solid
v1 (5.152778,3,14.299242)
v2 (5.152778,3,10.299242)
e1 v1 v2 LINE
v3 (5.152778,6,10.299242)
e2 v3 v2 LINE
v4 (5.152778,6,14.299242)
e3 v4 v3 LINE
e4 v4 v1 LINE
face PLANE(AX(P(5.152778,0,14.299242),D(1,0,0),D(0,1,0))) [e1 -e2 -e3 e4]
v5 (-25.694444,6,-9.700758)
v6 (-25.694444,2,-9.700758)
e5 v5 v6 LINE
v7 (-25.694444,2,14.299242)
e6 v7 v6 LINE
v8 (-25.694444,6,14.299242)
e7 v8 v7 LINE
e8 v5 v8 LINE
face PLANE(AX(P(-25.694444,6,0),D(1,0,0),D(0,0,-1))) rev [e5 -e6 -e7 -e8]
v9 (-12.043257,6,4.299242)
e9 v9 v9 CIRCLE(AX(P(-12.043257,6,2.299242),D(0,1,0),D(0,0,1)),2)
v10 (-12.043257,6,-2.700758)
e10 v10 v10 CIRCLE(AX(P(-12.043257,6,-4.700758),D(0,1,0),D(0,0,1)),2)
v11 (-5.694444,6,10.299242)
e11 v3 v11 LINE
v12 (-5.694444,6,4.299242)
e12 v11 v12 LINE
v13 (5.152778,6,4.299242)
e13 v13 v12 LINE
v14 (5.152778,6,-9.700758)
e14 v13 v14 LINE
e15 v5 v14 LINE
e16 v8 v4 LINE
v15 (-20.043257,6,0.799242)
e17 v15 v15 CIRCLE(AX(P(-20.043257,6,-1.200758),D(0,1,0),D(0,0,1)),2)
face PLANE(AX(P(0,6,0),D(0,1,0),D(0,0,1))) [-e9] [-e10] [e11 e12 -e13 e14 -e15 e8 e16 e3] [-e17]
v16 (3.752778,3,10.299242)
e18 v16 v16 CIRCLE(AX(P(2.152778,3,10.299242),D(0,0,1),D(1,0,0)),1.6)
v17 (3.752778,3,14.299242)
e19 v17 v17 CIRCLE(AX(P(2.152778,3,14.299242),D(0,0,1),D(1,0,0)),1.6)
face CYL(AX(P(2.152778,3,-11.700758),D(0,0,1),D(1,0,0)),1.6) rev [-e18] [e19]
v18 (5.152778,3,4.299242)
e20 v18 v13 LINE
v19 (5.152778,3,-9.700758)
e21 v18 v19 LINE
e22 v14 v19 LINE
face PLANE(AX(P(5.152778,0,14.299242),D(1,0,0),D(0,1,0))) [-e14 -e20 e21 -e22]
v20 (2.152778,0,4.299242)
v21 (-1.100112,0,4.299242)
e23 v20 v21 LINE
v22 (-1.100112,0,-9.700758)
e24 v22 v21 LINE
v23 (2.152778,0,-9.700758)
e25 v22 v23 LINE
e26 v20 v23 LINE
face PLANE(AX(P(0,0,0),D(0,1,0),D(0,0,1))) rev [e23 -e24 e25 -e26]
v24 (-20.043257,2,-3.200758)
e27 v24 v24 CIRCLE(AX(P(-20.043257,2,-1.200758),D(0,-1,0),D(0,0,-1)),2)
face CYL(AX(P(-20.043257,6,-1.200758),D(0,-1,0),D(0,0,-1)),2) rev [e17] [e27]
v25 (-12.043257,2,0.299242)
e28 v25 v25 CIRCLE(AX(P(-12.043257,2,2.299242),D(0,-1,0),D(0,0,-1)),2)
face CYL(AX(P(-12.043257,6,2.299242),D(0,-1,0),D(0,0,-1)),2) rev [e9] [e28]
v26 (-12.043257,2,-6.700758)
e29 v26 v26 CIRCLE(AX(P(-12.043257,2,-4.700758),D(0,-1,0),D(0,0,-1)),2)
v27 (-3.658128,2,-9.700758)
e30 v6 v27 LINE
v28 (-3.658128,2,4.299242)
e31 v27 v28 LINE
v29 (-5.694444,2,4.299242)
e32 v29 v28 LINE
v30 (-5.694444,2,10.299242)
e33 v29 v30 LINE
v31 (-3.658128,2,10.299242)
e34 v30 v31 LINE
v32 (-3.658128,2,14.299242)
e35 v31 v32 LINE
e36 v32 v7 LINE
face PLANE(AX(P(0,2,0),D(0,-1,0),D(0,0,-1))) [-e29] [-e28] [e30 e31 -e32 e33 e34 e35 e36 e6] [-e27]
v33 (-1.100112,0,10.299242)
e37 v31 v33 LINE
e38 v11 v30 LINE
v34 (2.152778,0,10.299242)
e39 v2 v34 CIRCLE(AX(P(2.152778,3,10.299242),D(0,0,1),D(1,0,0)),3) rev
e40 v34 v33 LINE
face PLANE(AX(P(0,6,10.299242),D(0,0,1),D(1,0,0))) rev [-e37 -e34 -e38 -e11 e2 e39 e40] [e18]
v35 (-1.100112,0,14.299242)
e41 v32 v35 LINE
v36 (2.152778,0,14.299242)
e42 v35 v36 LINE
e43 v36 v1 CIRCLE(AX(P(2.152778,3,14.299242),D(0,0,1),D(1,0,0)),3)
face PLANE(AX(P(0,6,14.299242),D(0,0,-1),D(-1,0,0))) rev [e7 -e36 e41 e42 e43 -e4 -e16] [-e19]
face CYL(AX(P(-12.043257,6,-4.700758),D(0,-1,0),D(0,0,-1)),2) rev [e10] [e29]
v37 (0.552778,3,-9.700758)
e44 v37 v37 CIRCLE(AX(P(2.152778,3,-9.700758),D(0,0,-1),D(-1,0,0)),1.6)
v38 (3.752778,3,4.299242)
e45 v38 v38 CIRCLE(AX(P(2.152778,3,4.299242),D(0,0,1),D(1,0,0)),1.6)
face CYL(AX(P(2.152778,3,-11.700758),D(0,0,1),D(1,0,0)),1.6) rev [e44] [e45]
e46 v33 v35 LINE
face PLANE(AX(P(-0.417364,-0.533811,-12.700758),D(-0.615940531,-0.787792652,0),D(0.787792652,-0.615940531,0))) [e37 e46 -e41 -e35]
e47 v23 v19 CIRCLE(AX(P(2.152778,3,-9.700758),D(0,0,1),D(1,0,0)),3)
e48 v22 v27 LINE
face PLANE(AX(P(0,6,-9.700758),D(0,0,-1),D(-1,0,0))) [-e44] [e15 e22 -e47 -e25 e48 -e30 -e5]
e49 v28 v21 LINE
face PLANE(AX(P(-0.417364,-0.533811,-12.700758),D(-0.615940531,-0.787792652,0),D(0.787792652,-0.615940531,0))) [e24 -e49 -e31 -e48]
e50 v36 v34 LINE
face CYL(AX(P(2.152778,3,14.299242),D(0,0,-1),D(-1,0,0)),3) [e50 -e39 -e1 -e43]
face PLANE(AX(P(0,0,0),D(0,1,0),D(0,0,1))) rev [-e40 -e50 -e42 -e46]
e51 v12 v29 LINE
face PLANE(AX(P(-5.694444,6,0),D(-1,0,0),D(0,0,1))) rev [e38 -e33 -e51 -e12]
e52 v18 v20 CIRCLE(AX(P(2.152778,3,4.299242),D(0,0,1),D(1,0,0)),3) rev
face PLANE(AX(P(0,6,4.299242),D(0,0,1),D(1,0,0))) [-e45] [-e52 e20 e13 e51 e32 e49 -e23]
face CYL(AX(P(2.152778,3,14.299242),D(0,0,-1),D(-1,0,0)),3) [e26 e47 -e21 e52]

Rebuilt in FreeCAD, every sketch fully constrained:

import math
import FreeCAD as App
import Part
import Sketcher


def add_polygon(sketch, points):
    """Adds a closed chain of lines whose ends are joined by coincident constraints."""
    first, n = sketch.GeometryCount, len(points)
    for a, b in zip(points, points[1:] + points[:1]):
        sketch.addGeometry(Part.LineSegment(App.Vector(*a, 0), App.Vector(*b, 0)), False)
    for i in range(n):
        sketch.addConstraint(Sketcher.Constraint("Coincident", first + i, 2, first + (i + 1) % n, 1))

doc = App.newDocument("Part")
params = doc.addObject("Spreadsheet::Sheet", "Params")
for row, (alias, value) in enumerate([
    ("sketch1_diameter", "4 mm"),
    ("sketch1_width", "30 mm"),
    ("sketch1_width2", "10 mm"),
    ("sketch1_height", "24 mm"),
    ("sketch1_height2", "4 mm"),
    ("pad1_length", "6 mm"),
    ("sketch2_diameter", "3.2 mm"),
    ("pocket1_length", "26 mm"),
    ("sketch3_height", "24 mm"),
    ("pocket2_length", "2 mm"),
    ("sketch4_height", "2 mm"),
    ("pocket3_length", "27 mm"),
    ("sketch5_radius", "3 mm"),
    ("pocket4_length", "24 mm"),
    ("sketch6_radius", "3 mm"),
    ("sketch6_height", "3 mm"),
    ("pad2_length", "24 mm"),
    ("sketch7_height", "6 mm"),
    ("pocket5_length", "24 mm"),
], start=1):
    params.set(f"A{row}", alias)
    params.set(f"B{row}", "=" + value)
    params.setAlias(f"B{row}", alias)

body = doc.addObject("PartDesign::Body", "Body")

# Sketch on XZ plane
sketch1 = body.newObject("Sketcher::SketchObject", "Sketch")
sketch1.AttachmentSupport = (doc.getObject("XZ_Plane"), [""])
sketch1.MapMode = "FlatFace"
add_polygon(sketch1, [(4.3, -9.7), (-25.7, -9.7), (-25.7, 14.3), (4.3, 14.3), (4.3, 10.3), (-5.7, 10.3), (-5.7, 4.3), (4.3, 4.3)])  # lines 0-7
sketch1.addGeometry(Part.Circle(App.Vector(-12, 2.3, 0), App.Vector(0, 0, 1), 2), False)  # 8
sketch1.addGeometry(Part.Circle(App.Vector(-20, -1.2, 0), App.Vector(0, 0, 1), 2), False)  # 9
sketch1.addGeometry(Part.Circle(App.Vector(-12, -4.7, 0), App.Vector(0, 0, 1), 2), False)  # 10
sketch1.addConstraint([
    Sketcher.Constraint("Horizontal", 0),
    Sketcher.Constraint("Vertical", 1),
    Sketcher.Constraint("Horizontal", 2),
    Sketcher.Constraint("Vertical", 3),
    Sketcher.Constraint("Horizontal", 4),
    Sketcher.Constraint("Vertical", 5),
    Sketcher.Constraint("Horizontal", 6),
    Sketcher.Constraint("Vertical", 7),
    Sketcher.Constraint("Equal", 8, 9),
    Sketcher.Constraint("Equal", 9, 10),
    Sketcher.Constraint("Vertical", 8, 3, 10, 3),
    Sketcher.Constraint("Vertical", 3, 2, 6, 2),
    Sketcher.Constraint("Diameter", 8, 4.0),
    Sketcher.Constraint("DistanceX", 0, 2, 0, 1, 30.0),
    Sketcher.Constraint("DistanceX", 4, 2, 4, 1, 10.0),
    Sketcher.Constraint("DistanceY", 1, 1, 1, 2, 24.0),
    Sketcher.Constraint("DistanceY", 3, 2, 3, 1, 4.0),
    Sketcher.Constraint("DistanceY", 5, 2, 5, 1, 6.0),
    Sketcher.Constraint("DistanceX", 9, 3, 8, 3, 8.0),
    Sketcher.Constraint("DistanceY", 10, 3, 8, 3, 7.0),
    Sketcher.Constraint("DistanceY", 0, 2, 10, 3, 5.0),
    Sketcher.Constraint("DistanceY", 9, 3, 8, 3, 3.5),
    Sketcher.Constraint("DistanceX", 8, 3, -1, 1, 12.043257),
    Sketcher.Constraint("DistanceY", -1, 1, 8, 3, 2.299242),
    Sketcher.Constraint("DistanceX", 0, 2, -1, 1, 25.694444),
])
sketch1.setExpression("Constraints[20]", "Params.sketch1_diameter")
sketch1.setExpression("Constraints[21]", "Params.sketch1_width")
sketch1.setExpression("Constraints[22]", "Params.sketch1_width2")
sketch1.setExpression("Constraints[23]", "Params.sketch1_height")
sketch1.setExpression("Constraints[24]", "Params.sketch1_height2")
pad1 = body.newObject("PartDesign::Pad", "Pad")
pad1.Profile = sketch1
pad1.setExpression("Length", "Params.pad1_length")
pad1.Reversed = True

# Sketch on XY plane
sketch2 = body.newObject("Sketcher::SketchObject", "Sketch001")
sketch2.AttachmentSupport = (doc.getObject("XY_Plane"), [""])
sketch2.MapMode = "FlatFace"
sketch2.AttachmentOffset = App.Placement(App.Vector(0, 0, 14.299242), App.Rotation())
sketch2.addGeometry(Part.Circle(App.Vector(2.2, 3, 0), App.Vector(0, 0, 1), 1.6), False)
sketch2.addConstraint([
    Sketcher.Constraint("Diameter", 0, 3.2),
    Sketcher.Constraint("DistanceY", -1, 1, 0, 3, 3.0),
    Sketcher.Constraint("DistanceX", -1, 1, 0, 3, 2.152778),
])
sketch2.setExpression("Constraints[0]", "Params.sketch2_diameter")
pocket1 = body.newObject("PartDesign::Pocket", "Pocket")
pocket1.Profile = sketch2
pocket1.setExpression("Length", "Params.pocket1_length")

# Sketch on XZ plane
sketch3 = body.newObject("Sketcher::SketchObject", "Sketch002")
sketch3.AttachmentSupport = (doc.getObject("XZ_Plane"), [""])
sketch3.MapMode = "FlatFace"
add_polygon(sketch3, [(-26, 14), (-26, -10), (-4, -10), (-4, 14)])  # lines 0-3
sketch3.addConstraint([
    Sketcher.Constraint("Vertical", 0),
    Sketcher.Constraint("Horizontal", 1),
    Sketcher.Constraint("Vertical", 2),
    Sketcher.Constraint("Horizontal", 3),
    Sketcher.Constraint("DistanceY", 0, 2, 0, 1, 24.0),
    Sketcher.Constraint("DistanceX", 1, 1, 1, 2, 22.036317),
    Sketcher.Constraint("DistanceX", 0, 2, -1, 1, 25.694444),
    Sketcher.Constraint("DistanceY", 0, 2, -1, 1, 9.700758),
])
sketch3.setExpression("Constraints[8]", "Params.sketch3_height")
pocket2 = body.newObject("PartDesign::Pocket", "Pocket001")
pocket2.Profile = sketch3
pocket2.setExpression("Length", "Params.pocket2_length")

# Sketch on XY plane
sketch4 = body.newObject("Sketcher::SketchObject", "Sketch003")
sketch4.AttachmentSupport = (doc.getObject("XY_Plane"), [""])
sketch4.MapMode = "FlatFace"
sketch4.AttachmentOffset = App.Placement(App.Vector(0, 0, 14.299242), App.Rotation())
add_polygon(sketch4, [(-1.1, 0), (-3.7, 2), (-3.7, 0)])  # lines 0-2
sketch4.addConstraint([
    Sketcher.Constraint("Vertical", 1),
    Sketcher.Constraint("Horizontal", 2),
    Sketcher.Constraint("PointOnObject", 1, 2, -1),
    Sketcher.Constraint("DistanceY", 1, 2, 1, 1, 2.0),
    Sketcher.Constraint("DistanceX", 2, 1, 2, 2, 2.558015),
    Sketcher.Constraint("DistanceX", 0, 2, -1, 1, 3.658128),
])
sketch4.setExpression("Constraints[6]", "Params.sketch4_height")
pocket3 = body.newObject("PartDesign::Pocket", "Pocket002")
pocket3.Profile = sketch4
pocket3.setExpression("Length", "Params.pocket3_length")

# Sketch on XY plane
sketch5 = body.newObject("Sketcher::SketchObject", "Sketch004")
sketch5.AttachmentSupport = (doc.getObject("XY_Plane"), [""])
sketch5.MapMode = "FlatFace"
sketch5.AttachmentOffset = App.Placement(App.Vector(0, 0, -9.700758), App.Rotation())
sketch5.addGeometry([
    Part.LineSegment(App.Vector(4.3, 0, 0), App.Vector(2.2, 0, 0)),
    Part.ArcOfCircle(Part.Circle(App.Vector(2.2, 3, 0), App.Vector(0, 0, 1), 3), math.radians(-90), math.radians(-44)),
    Part.LineSegment(App.Vector(4.3, 0.9, 0), App.Vector(4.3, 0, 0)),
], False)
sketch5.addConstraint([
    Sketcher.Constraint("Tangent", 0, 2, 1, 1),
    Sketcher.Constraint("Coincident", 1, 2, 2, 1),
    Sketcher.Constraint("Coincident", 2, 2, 0, 1),
    Sketcher.Constraint("Horizontal", 0),
    Sketcher.Constraint("Vertical", 2),
    Sketcher.Constraint("PointOnObject", 0, 2, -1),
    Sketcher.Constraint("Radius", 1, 3.0),
    Sketcher.Constraint("DistanceY", 2, 2, 2, 1, 0.910611),
    Sketcher.Constraint("DistanceX", -1, 1, 1, 3, 2.152778),
])
sketch5.setExpression("Constraints[6]", "Params.sketch5_radius")
pocket4 = body.newObject("PartDesign::Pocket", "Pocket003")
pocket4.Profile = sketch5
pocket4.setExpression("Length", "Params.pocket4_length")
pocket4.Reversed = True

# Sketch on XY plane
sketch6 = body.newObject("Sketcher::SketchObject", "Sketch005")
sketch6.AttachmentSupport = (doc.getObject("XY_Plane"), [""])
sketch6.MapMode = "FlatFace"
sketch6.AttachmentOffset = App.Placement(App.Vector(0, 0, -9.700758), App.Rotation())
sketch6.addGeometry([
    Part.ArcOfCircle(Part.Circle(App.Vector(2.2, 3, 0), App.Vector(0, 0, 1), 3), math.radians(-44), math.radians(0)),
    Part.LineSegment(App.Vector(4.3, 0.9, 0), App.Vector(4.3, 6, 0)),
    Part.LineSegment(App.Vector(4.3, 6, 0), App.Vector(5.2, 6, 0)),
    Part.LineSegment(App.Vector(5.2, 6, 0), App.Vector(5.2, 3, 0)),
], False)
sketch6.addConstraint([
    Sketcher.Constraint("Coincident", 0, 1, 1, 1),
    Sketcher.Constraint("Coincident", 1, 2, 2, 1),
    Sketcher.Constraint("Coincident", 2, 2, 3, 1),
    Sketcher.Constraint("Tangent", 3, 2, 0, 2),
    Sketcher.Constraint("Vertical", 1),
    Sketcher.Constraint("Horizontal", 2),
    Sketcher.Constraint("Vertical", 3),
    Sketcher.Constraint("Radius", 0, 3.0),
    Sketcher.Constraint("DistanceY", 3, 2, 3, 1, 3.0),
    Sketcher.Constraint("DistanceY", -1, 1, 0, 3, 3.0),
    Sketcher.Constraint("DistanceY", 1, 1, 1, 2, 5.089389),
    Sketcher.Constraint("DistanceX", -1, 1, 0, 3, 2.152778),
])
sketch6.setExpression("Constraints[7]", "Params.sketch6_radius")
sketch6.setExpression("Constraints[8]", "Params.sketch6_height")
pad2 = body.newObject("PartDesign::Pad", "Pad001")
pad2.Profile = sketch6
pad2.setExpression("Length", "Params.pad2_length")

# Sketch on YZ plane
sketch7 = body.newObject("Sketcher::SketchObject", "Sketch006")
sketch7.AttachmentSupport = (doc.getObject("YZ_Plane"), [""])
sketch7.MapMode = "FlatFace"
sketch7.AttachmentOffset = App.Placement(App.Vector(0, 0, 4.305556), App.Rotation())
add_polygon(sketch7, [(6, 4), (1, 4), (1, 10), (6, 10)])  # lines 0-3
sketch7.addConstraint([
    Sketcher.Constraint("Horizontal", 0),
    Sketcher.Constraint("Vertical", 1),
    Sketcher.Constraint("Horizontal", 2),
    Sketcher.Constraint("Vertical", 3),
    Sketcher.Constraint("DistanceY", 1, 1, 1, 2, 6.0),
    Sketcher.Constraint("DistanceX", -1, 1, 2, 2, 6.0),
    Sketcher.Constraint("DistanceX", 0, 2, 0, 1, 5.089389),
    Sketcher.Constraint("DistanceY", -1, 1, 0, 2, 4.299242),
])
sketch7.setExpression("Constraints[8]", "Params.sketch7_height")
pocket5 = body.newObject("PartDesign::Pocket", "Pocket004")
pocket5.Profile = sketch7
pocket5.setExpression("Length", "Params.pocket5_length")
pocket5.Reversed = True

doc.recompute()
